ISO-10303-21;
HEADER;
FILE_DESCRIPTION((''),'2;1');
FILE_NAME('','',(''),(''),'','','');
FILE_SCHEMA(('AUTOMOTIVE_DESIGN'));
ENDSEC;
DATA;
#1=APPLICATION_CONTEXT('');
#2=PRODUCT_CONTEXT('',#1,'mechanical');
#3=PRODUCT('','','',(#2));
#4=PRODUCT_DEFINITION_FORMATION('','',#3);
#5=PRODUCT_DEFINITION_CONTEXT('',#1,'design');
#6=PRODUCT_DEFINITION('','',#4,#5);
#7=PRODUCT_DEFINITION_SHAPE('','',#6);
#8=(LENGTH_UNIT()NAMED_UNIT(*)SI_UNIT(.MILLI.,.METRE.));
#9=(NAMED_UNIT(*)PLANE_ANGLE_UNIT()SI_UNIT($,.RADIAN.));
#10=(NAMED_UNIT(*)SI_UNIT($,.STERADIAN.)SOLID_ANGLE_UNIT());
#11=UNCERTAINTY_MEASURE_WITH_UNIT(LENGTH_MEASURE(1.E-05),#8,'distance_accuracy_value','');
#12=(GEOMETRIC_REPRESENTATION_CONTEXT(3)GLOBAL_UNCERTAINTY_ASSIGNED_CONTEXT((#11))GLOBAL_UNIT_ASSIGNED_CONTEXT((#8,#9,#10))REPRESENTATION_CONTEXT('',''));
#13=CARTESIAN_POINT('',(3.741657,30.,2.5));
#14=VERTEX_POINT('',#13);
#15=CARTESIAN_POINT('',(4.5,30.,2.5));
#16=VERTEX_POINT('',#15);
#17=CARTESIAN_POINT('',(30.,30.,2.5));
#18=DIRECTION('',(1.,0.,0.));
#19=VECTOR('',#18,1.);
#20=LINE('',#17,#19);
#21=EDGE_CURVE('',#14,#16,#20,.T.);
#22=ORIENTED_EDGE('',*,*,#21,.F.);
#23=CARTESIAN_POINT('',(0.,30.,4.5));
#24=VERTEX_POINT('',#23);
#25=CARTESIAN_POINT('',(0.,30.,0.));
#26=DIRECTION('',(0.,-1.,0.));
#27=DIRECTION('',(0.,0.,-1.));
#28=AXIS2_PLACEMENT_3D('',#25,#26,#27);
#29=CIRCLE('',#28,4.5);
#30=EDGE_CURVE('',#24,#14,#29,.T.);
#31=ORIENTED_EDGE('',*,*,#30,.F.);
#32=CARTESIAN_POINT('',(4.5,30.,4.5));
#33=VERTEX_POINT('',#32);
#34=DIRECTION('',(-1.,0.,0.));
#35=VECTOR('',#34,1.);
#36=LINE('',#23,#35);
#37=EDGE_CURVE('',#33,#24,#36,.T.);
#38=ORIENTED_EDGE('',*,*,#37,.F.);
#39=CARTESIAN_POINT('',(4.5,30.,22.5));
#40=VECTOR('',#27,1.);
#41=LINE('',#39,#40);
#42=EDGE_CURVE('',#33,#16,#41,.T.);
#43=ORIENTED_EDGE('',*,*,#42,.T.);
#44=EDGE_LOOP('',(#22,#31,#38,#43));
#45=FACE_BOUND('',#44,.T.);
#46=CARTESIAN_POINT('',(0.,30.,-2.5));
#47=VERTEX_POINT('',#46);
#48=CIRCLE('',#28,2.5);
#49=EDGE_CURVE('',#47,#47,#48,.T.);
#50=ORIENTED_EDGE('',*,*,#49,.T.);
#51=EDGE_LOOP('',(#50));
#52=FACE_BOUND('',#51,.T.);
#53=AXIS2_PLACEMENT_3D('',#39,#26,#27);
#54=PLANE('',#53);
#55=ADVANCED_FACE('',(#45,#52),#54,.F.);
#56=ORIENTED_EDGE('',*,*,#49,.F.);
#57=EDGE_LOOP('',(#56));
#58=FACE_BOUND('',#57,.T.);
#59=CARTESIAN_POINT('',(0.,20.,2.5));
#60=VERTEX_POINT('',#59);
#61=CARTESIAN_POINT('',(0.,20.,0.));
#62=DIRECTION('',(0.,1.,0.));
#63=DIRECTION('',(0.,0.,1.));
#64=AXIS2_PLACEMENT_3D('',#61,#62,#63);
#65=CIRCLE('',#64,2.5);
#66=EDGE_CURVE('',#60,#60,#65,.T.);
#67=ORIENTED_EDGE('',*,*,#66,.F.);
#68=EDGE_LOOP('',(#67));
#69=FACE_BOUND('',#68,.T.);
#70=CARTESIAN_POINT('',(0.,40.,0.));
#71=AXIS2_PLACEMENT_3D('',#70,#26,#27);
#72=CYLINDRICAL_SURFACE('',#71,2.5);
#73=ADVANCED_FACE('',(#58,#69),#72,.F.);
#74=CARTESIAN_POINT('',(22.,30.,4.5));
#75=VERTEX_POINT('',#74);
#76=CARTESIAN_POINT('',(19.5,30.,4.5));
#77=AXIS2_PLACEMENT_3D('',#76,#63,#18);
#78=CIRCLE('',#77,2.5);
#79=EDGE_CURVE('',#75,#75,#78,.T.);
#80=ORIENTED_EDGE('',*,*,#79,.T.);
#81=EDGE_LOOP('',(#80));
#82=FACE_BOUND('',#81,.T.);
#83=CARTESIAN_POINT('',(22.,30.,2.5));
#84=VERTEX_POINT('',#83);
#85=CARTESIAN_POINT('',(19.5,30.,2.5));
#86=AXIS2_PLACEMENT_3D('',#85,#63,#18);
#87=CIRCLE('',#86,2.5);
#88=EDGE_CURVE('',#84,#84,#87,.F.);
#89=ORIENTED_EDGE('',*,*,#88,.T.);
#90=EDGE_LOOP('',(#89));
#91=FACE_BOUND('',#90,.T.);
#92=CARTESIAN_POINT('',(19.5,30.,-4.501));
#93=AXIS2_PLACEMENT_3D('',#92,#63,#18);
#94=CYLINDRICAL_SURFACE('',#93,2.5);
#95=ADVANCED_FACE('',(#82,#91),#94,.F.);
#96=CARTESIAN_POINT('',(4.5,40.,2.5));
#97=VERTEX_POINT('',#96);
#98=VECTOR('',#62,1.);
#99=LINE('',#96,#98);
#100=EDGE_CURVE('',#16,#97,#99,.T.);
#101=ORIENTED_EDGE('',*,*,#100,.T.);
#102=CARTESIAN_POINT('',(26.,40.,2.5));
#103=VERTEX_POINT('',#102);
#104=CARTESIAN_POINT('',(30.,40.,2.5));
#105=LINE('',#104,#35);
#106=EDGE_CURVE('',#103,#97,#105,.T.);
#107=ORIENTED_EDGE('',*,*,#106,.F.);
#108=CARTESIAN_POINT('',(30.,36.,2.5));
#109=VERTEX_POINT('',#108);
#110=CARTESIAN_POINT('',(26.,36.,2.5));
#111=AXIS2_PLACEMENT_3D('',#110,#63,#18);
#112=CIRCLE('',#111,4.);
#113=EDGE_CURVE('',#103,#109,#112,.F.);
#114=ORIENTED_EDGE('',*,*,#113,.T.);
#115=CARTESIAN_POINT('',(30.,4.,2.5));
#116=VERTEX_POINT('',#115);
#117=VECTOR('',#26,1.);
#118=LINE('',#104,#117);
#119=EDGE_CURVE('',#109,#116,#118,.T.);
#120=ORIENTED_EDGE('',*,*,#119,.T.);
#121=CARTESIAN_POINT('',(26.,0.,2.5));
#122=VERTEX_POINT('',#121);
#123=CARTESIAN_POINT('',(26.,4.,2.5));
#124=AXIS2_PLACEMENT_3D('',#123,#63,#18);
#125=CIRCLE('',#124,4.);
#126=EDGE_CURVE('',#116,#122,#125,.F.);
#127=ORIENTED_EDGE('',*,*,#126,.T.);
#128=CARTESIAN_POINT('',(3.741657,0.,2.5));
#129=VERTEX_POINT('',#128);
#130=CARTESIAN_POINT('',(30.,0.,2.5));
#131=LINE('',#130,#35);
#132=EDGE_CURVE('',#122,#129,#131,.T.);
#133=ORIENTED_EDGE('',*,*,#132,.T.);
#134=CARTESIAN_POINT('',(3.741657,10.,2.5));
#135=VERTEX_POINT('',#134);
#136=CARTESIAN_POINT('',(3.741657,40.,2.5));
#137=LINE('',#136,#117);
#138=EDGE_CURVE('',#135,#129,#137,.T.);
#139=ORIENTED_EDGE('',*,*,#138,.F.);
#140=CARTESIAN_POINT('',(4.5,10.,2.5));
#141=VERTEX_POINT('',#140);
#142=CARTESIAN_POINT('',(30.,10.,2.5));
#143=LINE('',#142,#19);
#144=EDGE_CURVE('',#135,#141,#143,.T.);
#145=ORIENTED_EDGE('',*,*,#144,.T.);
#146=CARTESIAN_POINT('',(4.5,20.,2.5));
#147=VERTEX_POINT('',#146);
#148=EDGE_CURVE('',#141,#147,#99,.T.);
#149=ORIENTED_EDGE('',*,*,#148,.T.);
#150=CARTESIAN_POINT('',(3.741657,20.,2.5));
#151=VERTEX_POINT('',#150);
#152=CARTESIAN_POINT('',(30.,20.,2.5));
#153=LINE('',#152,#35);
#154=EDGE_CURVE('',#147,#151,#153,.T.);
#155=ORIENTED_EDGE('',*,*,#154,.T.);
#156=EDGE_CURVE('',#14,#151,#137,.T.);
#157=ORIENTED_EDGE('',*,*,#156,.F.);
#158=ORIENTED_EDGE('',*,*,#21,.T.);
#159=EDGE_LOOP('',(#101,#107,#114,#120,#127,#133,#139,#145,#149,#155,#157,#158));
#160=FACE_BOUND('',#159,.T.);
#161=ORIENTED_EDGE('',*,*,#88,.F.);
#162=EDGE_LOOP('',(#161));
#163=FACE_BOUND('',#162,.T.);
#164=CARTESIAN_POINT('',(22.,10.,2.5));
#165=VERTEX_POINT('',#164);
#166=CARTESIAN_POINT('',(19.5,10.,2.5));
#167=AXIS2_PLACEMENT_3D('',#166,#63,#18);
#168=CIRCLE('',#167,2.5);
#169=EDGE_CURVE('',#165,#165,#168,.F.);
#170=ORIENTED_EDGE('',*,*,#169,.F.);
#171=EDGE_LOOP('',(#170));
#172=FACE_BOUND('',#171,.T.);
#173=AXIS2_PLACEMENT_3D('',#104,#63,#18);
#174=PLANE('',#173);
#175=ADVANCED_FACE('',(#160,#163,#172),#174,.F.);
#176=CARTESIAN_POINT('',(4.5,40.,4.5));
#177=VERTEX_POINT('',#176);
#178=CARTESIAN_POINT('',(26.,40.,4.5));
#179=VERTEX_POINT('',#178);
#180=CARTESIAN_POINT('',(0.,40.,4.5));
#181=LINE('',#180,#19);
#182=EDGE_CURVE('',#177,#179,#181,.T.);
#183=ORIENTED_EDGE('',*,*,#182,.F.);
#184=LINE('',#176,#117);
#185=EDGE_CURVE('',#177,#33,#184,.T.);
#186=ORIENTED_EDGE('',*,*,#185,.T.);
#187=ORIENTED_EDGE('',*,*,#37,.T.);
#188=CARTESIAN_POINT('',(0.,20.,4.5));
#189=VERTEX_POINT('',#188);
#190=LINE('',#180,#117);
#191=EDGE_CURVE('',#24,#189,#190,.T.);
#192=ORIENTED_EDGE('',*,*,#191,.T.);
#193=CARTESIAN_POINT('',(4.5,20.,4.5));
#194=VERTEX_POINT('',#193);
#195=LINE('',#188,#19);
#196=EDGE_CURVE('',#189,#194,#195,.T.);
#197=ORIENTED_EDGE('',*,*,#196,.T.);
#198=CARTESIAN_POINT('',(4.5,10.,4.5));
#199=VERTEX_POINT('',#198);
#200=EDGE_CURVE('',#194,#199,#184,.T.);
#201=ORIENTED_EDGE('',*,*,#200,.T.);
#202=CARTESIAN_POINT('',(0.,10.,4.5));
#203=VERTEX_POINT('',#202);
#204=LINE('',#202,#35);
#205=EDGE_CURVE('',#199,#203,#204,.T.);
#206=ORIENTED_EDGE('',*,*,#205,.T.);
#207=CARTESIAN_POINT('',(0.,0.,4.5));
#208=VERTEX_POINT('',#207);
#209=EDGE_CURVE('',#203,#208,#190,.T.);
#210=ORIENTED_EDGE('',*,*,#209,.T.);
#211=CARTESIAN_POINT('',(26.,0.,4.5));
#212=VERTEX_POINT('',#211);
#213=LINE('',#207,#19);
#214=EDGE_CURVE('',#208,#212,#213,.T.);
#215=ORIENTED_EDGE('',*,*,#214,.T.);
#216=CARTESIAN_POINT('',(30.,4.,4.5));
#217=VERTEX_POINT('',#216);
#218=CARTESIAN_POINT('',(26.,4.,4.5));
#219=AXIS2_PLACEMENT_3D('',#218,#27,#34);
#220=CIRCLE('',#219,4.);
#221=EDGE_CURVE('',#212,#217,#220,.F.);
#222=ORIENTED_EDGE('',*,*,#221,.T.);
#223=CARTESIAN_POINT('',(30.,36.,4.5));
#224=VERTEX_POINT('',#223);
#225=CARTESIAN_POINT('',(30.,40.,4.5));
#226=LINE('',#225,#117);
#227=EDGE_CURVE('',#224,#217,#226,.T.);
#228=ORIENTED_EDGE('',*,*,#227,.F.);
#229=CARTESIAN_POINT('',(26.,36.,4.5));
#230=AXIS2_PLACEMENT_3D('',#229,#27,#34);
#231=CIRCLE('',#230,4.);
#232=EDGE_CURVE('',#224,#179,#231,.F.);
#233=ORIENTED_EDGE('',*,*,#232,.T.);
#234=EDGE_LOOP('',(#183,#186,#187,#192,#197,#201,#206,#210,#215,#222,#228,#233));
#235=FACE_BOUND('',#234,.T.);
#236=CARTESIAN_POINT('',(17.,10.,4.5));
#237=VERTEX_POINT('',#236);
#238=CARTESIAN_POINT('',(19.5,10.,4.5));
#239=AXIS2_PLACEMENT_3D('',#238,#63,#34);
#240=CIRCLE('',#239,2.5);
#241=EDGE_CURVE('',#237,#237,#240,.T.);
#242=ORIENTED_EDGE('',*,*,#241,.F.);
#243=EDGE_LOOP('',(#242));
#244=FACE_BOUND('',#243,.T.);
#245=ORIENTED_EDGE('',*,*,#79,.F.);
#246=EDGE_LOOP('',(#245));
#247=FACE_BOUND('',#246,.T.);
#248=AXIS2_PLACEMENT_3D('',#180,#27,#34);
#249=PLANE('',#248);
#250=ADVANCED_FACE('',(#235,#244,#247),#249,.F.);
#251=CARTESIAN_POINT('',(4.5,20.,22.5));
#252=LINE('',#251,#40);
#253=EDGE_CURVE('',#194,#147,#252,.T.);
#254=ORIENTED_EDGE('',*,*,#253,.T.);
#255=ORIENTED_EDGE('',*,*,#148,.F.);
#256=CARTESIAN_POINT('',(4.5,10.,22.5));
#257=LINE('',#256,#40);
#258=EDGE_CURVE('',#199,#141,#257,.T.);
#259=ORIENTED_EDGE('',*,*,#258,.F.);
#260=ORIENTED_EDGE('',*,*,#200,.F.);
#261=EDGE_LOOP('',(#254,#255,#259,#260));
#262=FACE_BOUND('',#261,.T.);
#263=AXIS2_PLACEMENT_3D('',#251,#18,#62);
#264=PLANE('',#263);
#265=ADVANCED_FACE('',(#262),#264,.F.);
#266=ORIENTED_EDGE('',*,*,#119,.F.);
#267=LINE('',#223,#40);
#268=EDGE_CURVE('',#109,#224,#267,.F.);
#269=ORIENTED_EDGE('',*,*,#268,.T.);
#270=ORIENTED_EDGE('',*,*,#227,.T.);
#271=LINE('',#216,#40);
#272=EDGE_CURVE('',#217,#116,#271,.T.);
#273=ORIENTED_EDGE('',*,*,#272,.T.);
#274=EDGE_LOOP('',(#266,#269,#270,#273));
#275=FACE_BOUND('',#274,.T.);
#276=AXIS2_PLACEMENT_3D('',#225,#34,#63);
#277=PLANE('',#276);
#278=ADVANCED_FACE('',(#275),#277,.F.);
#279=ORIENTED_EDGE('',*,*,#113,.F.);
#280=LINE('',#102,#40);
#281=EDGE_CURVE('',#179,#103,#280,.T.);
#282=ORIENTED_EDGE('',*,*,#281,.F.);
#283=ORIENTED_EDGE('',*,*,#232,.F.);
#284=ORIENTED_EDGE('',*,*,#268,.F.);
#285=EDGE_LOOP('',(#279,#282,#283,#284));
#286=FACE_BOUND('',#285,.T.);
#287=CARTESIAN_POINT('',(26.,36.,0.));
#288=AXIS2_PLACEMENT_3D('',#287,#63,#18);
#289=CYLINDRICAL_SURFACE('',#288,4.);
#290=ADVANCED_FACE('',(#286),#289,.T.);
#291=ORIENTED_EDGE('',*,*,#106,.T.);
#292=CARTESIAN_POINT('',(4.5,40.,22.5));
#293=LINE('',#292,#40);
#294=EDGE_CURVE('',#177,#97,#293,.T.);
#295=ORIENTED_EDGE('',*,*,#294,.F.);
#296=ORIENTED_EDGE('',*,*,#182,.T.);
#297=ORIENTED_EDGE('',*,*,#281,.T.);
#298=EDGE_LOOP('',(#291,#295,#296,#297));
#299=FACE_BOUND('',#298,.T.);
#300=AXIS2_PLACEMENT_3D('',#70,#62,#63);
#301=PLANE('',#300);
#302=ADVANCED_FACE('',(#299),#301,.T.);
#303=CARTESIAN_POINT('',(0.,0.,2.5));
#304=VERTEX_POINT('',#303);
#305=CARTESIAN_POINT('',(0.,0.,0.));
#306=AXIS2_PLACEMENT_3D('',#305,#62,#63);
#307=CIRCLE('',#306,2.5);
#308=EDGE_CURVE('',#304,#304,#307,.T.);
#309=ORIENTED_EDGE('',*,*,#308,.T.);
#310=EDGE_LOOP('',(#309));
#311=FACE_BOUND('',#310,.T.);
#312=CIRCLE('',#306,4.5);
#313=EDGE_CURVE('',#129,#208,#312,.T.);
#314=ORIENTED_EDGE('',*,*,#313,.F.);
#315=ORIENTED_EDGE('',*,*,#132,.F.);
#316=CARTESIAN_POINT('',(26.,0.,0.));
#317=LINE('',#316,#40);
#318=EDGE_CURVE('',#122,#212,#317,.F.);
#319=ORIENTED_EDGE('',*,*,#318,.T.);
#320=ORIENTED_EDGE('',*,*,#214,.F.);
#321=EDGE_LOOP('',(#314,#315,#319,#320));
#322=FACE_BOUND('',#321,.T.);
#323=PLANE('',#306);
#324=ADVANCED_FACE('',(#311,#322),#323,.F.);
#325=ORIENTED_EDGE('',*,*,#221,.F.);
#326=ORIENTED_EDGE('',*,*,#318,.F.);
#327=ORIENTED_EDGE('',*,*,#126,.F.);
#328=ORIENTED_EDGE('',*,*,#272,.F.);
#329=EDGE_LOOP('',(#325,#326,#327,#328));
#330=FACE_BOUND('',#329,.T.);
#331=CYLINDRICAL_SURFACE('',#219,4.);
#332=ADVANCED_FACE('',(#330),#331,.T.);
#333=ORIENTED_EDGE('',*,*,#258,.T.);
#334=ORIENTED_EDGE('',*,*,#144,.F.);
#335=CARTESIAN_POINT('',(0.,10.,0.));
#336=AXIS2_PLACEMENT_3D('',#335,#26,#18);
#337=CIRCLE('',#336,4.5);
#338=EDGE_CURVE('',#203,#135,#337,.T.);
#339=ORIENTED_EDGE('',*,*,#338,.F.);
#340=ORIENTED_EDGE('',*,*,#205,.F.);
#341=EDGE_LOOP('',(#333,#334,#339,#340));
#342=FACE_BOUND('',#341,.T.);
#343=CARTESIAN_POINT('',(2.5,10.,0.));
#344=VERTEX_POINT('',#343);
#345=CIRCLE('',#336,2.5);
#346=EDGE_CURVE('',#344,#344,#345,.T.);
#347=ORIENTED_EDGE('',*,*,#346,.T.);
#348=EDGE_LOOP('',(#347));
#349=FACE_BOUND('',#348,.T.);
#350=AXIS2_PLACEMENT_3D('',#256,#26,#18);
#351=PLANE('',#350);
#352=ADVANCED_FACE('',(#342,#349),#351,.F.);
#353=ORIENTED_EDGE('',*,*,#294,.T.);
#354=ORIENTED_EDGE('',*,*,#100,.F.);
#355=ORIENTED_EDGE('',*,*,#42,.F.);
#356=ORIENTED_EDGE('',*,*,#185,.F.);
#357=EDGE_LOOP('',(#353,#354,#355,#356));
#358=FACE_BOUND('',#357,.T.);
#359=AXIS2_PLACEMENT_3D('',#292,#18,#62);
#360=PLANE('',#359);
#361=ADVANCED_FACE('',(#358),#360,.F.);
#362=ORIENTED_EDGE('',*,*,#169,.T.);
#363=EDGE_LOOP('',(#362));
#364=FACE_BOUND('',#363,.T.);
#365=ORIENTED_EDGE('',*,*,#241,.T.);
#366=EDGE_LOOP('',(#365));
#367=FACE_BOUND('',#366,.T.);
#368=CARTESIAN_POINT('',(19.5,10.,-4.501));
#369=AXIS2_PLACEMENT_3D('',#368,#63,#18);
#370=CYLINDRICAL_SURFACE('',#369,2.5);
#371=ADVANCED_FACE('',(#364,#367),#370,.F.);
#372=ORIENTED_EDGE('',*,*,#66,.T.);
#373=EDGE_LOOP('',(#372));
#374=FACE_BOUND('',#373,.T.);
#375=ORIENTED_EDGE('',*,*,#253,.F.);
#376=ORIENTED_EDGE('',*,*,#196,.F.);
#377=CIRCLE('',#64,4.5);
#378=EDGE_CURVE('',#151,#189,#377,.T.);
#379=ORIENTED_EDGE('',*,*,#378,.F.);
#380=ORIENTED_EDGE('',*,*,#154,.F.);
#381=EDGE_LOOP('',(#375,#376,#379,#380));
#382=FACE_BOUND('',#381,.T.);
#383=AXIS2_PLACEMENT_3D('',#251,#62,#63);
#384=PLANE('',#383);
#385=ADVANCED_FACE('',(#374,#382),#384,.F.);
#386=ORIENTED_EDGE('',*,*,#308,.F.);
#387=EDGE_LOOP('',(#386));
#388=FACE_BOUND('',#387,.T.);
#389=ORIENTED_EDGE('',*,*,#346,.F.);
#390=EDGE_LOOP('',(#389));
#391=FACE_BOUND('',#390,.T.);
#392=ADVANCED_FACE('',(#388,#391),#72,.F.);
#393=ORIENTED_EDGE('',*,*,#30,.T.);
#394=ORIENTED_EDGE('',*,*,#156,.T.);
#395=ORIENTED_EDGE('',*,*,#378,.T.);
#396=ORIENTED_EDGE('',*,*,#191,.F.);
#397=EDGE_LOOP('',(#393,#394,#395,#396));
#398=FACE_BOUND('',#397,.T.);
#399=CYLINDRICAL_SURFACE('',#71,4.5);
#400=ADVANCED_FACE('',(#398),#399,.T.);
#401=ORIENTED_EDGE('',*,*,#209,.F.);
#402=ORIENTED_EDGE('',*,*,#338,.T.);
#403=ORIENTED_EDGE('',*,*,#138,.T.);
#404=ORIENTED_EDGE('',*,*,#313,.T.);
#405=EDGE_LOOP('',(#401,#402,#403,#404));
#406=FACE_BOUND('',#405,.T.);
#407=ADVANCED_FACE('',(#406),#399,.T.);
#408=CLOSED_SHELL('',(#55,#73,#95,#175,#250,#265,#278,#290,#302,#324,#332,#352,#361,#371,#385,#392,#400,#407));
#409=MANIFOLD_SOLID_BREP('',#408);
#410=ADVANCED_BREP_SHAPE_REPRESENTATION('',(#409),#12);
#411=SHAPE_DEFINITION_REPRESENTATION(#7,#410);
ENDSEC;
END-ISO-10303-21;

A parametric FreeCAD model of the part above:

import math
import FreeCAD as App
import Part
import Sketcher
from FreeCAD import Vector
Q = App.Units.Quantity


def edges_at(feature, points):
    """Names of the edges that pass closest to the given points."""
    edges = feature.Shape.Edges
    near = lambda p: min(range(len(edges)), key=lambda i: edges[i].distToShape(Part.Vertex(*p))[0])
    return sorted({f"Edge{near(p) + 1}" for p in points})


def add_polygon(sketch, points):
    """Adds a closed chain of lines whose ends are joined by coincident constraints."""
    first, n = sketch.GeometryCount, len(points)
    for a, b in zip(points, points[1:] + points[:1]):
        sketch.addGeometry(Part.LineSegment(App.Vector(*a, 0), App.Vector(*b, 0)), False)
    for i in range(n):
        sketch.addConstraint(Sketcher.Constraint("Coincident", first + i, 2, first + (i + 1) % n, 1))

doc = App.newDocument("Part")
body = doc.addObject("PartDesign::Body", "Body")

# Sketch on XZ plane
sketch1 = doc.addObject("Sketcher::SketchObject", "Sketch")
body.addObject(sketch1)
sketch1.AttachmentSupport = (doc.XZ_Plane, [""])
sketch1.MapMode = "FlatFace"
sketch1.addGeometry([
    Part.LineSegment(Vector(0, 4.5, 0), Vector(30, 4.5, 0)),  # 0
    Part.LineSegment(Vector(30, 4.5, 0), Vector(30, 2.5, 0)),  # 1
    Part.LineSegment(Vector(30, 2.5, 0), Vector(3.7, 2.5, 0)),  # 2
    Part.ArcOfCircle(Part.Circle(Vector(0, 0, 0), Vector(0, 0, 1), 4.5), math.radians(90), math.radians(394)),  # 3
    Part.Circle(Vector(0, 0, 0), Vector(0, 0, 1), 2.5),  # 4
], False)
sketch1.addConstraint([
    Sketcher.Constraint("Coincident", 0, 2, 1, 1),
    Sketcher.Constraint("Coincident", 1, 2, 2, 1),
    Sketcher.Constraint("Coincident", 2, 2, 3, 2),
    Sketcher.Constraint("Tangent", 3, 1, 0, 1),
    Sketcher.Constraint("Horizontal", 0),
    Sketcher.Constraint("Vertical", 1),
    Sketcher.Constraint("Horizontal", 2),
    Sketcher.Constraint("Coincident", 3, 3, -1, 1),
    Sketcher.Constraint("Coincident", 4, 3, -1, 1),
    Sketcher.Constraint("Diameter", 4, Q("5 mm")),
    Sketcher.Constraint("Radius", 3, Q("4.5 mm")),
    Sketcher.Constraint("DistanceX", 0, 1, 0, 2, Q("30 mm")),
    Sketcher.Constraint("DistanceY", 1, 2, 1, 1, Q("2 mm")),
])
pad1 = doc.addObject("PartDesign::Pad", "Pad")
body.addObject(pad1)
pad1.Profile = sketch1
pad1.Length = 40
pad1.Reversed = True

# Sketch on XY plane
sketch2 = doc.addObject("Sketcher::SketchObject", "Sketch001")
body.addObject(sketch2)
sketch2.AttachmentSupport = (doc.XY_Plane, [""])
sketch2.MapMode = "FlatFace"
sketch2.AttachmentOffset = App.Placement(Vector(0, 0, 4.5), App.Rotation())
sketch2.addGeometry(Part.Circle(Vector(19.5, 30, 0), Vector(0, 0, 1), 2.5), False)
sketch2.addConstraint([
    Sketcher.Constraint("Diameter", 0, Q("5 mm")),
    Sketcher.Constraint("DistanceY", -1, 1, 0, 3, Q("30 mm")),
    Sketcher.Constraint("DistanceX", -1, 1, 0, 3, Q("19.5 mm")),
])
pocket1 = doc.addObject("PartDesign::Pocket", "Pocket")
body.addObject(pocket1)
pocket1.Profile = sketch2
pocket1.Type = "UpToFirst"

# Sketch on XY plane
sketch3 = doc.addObject("Sketcher::SketchObject", "Sketch002")
body.addObject(sketch3)
sketch3.AttachmentSupport = (doc.XY_Plane, [""])
sketch3.MapMode = "FlatFace"
sketch3.AttachmentOffset = App.Placement(Vector(0, 0, 4.5), App.Rotation())
sketch3.addGeometry(Part.Circle(Vector(19.5, 10, 0), Vector(0, 0, 1), 2.5), False)
sketch3.addConstraint([
    Sketcher.Constraint("Diameter", 0, Q("5 mm")),
    Sketcher.Constraint("DistanceY", -1, 1, 0, 3, Q("10 mm")),
    Sketcher.Constraint("DistanceX", -1, 1, 0, 3, Q("19.5 mm")),
])
pocket2 = doc.addObject("PartDesign::Pocket", "Pocket001")
body.addObject(pocket2)
pocket2.Profile = sketch3
pocket2.Type = "UpToFirst"

# Sketch on XY plane
sketch4 = doc.addObject("Sketcher::SketchObject", "Sketch003")
body.addObject(sketch4)
sketch4.AttachmentSupport = (doc.XY_Plane, [""])
sketch4.MapMode = "FlatFace"
sketch4.AttachmentOffset = App.Placement(Vector(0, 0, 2.5), App.Rotation())
add_polygon(sketch4, [(4, 40), (4, 30), (-4, 30), (-4, 40)])  # lines 0-3
add_polygon(sketch4, [(4, 20), (4, 10), (-4, 10), (-4, 20)])  # lines 4-7
sketch4.addConstraint([
    Sketcher.Constraint("Vertical", 0),
    Sketcher.Constraint("Horizontal", 1),
    Sketcher.Constraint("Vertical", 2),
    Sketcher.Constraint("Horizontal", 3),
    Sketcher.Constraint("Vertical", 4),
    Sketcher.Constraint("Horizontal", 5),
    Sketcher.Constraint("Vertical", 6),
    Sketcher.Constraint("Horizontal", 7),
    Sketcher.Constraint("Vertical", 3, 2, 4, 2),
    Sketcher.Constraint("Vertical", 2, 2, 5, 2),
    Sketcher.Constraint("Equal", 2, 4),
    Sketcher.Constraint("DistanceX", 1, 2, 1, 1, Q("9 mm")),
    Sketcher.Constraint("DistanceY", 0, 2, 0, 1, Q("10 mm")),
    Sketcher.Constraint("DistanceY", -1, 1, 0, 2, Q("30 mm")),
    Sketcher.Constraint("DistanceY", -1, 1, 4, 2, Q("10 mm")),
    Sketcher.Constraint("DistanceX", -1, 1, 0, 2, Q("4.5 mm")),
])
pocket3 = doc.addObject("PartDesign::Pocket", "Pocket002")
body.addObject(pocket3)
pocket3.Profile = sketch4
pocket3.Length = 40
pocket3.Midplane = True
doc.recompute()

fillet = doc.addObject("PartDesign::Fillet", "Fillet")
body.addObject(fillet)
fillet.Base = (pocket3, edges_at(pocket3, [(30, 40, 3.5), (30, 0, 3.5)]))
fillet.Radius = 4

doc.recompute()
